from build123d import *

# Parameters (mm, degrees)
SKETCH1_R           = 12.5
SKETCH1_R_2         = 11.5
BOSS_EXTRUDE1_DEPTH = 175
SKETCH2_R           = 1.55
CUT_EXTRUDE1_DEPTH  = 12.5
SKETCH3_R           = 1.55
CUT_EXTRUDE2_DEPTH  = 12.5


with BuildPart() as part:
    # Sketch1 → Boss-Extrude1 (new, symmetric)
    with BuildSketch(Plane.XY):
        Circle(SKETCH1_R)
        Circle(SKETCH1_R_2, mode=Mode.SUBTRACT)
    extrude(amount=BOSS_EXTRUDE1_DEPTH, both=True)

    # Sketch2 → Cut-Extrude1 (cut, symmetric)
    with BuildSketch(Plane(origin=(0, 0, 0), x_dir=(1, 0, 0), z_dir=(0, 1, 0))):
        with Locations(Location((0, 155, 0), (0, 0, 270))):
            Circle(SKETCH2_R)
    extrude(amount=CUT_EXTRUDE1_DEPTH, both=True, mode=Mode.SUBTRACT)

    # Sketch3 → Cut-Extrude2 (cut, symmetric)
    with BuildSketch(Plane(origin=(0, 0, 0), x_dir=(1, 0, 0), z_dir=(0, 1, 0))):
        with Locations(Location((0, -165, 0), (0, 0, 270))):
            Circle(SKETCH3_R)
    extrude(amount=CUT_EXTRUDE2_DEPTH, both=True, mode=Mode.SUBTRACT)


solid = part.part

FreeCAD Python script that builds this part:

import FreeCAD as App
import Part
import Sketcher
from FreeCAD import Vector
Q = App.Units.Quantity

doc = App.newDocument("Part")
body = doc.addObject("PartDesign::Body", "Body")

# Sketch on XY plane
sketch1 = body.newObject("Sketcher::SketchObject", "Sketch")
sketch1.AttachmentSupport = (doc.getObject("XY_Plane"), [""])
sketch1.MapMode = "FlatFace"
sketch1.addGeometry([
    Part.Circle(Vector(0, 0, 0), Vector(0, 0, 1), 12),
    Part.Circle(Vector(0, 0, 0), Vector(0, 0, 1), 12),
], False)
sketch1.addConstraint([
    Sketcher.Constraint("Coincident", 0, 3, -1, 1),
    Sketcher.Constraint("Coincident", 1, 3, -1, 1),
    Sketcher.Constraint("Diameter", 0, Q("25 mm")),
    Sketcher.Constraint("Diameter", 1, Q("23 mm")),
])
pad1 = body.newObject("PartDesign::Pad", "Pad")
pad1.Profile = sketch1
pad1.Length = 350
pad1.Midplane = True

# Sketch on XZ plane
sketch2 = body.newObject("Sketcher::SketchObject", "Sketch001")
sketch2.AttachmentSupport = (doc.getObject("XZ_Plane"), [""])
sketch2.MapMode = "FlatFace"
sketch2.addGeometry(Part.Circle(Vector(0, -155, 0), Vector(0, 0, 1), 1.6), False)
sketch2.addConstraint([
    Sketcher.Constraint("PointOnObject", 0, 3, -2),
    Sketcher.Constraint("Diameter", 0, Q("3.1 mm")),
    Sketcher.Constraint("DistanceY", 0, 3, -1, 1, Q("155 mm")),
])
pocket1 = body.newObject("PartDesign::Pocket", "Pocket")
pocket1.Profile = sketch2
pocket1.Length = 25
pocket1.Midplane = True

# Sketch on XZ plane
sketch3 = body.newObject("Sketcher::SketchObject", "Sketch002")
sketch3.AttachmentSupport = (doc.getObject("XZ_Plane"), [""])
sketch3.MapMode = "FlatFace"
sketch3.addGeometry(Part.Circle(Vector(0, 165, 0), Vector(0, 0, 1), 1.6), False)
sketch3.addConstraint([
    Sketcher.Constraint("PointOnObject", 0, 3, -2),
    Sketcher.Constraint("Diameter", 0, Q("3.1 mm")),
    Sketcher.Constraint("DistanceY", -1, 1, 0, 3, Q("165 mm")),
])
pocket2 = body.newObject("PartDesign::Pocket", "Pocket001")
pocket2.Profile = sketch3
pocket2.Length = 25
pocket2.Midplane = True

doc.recompute()
